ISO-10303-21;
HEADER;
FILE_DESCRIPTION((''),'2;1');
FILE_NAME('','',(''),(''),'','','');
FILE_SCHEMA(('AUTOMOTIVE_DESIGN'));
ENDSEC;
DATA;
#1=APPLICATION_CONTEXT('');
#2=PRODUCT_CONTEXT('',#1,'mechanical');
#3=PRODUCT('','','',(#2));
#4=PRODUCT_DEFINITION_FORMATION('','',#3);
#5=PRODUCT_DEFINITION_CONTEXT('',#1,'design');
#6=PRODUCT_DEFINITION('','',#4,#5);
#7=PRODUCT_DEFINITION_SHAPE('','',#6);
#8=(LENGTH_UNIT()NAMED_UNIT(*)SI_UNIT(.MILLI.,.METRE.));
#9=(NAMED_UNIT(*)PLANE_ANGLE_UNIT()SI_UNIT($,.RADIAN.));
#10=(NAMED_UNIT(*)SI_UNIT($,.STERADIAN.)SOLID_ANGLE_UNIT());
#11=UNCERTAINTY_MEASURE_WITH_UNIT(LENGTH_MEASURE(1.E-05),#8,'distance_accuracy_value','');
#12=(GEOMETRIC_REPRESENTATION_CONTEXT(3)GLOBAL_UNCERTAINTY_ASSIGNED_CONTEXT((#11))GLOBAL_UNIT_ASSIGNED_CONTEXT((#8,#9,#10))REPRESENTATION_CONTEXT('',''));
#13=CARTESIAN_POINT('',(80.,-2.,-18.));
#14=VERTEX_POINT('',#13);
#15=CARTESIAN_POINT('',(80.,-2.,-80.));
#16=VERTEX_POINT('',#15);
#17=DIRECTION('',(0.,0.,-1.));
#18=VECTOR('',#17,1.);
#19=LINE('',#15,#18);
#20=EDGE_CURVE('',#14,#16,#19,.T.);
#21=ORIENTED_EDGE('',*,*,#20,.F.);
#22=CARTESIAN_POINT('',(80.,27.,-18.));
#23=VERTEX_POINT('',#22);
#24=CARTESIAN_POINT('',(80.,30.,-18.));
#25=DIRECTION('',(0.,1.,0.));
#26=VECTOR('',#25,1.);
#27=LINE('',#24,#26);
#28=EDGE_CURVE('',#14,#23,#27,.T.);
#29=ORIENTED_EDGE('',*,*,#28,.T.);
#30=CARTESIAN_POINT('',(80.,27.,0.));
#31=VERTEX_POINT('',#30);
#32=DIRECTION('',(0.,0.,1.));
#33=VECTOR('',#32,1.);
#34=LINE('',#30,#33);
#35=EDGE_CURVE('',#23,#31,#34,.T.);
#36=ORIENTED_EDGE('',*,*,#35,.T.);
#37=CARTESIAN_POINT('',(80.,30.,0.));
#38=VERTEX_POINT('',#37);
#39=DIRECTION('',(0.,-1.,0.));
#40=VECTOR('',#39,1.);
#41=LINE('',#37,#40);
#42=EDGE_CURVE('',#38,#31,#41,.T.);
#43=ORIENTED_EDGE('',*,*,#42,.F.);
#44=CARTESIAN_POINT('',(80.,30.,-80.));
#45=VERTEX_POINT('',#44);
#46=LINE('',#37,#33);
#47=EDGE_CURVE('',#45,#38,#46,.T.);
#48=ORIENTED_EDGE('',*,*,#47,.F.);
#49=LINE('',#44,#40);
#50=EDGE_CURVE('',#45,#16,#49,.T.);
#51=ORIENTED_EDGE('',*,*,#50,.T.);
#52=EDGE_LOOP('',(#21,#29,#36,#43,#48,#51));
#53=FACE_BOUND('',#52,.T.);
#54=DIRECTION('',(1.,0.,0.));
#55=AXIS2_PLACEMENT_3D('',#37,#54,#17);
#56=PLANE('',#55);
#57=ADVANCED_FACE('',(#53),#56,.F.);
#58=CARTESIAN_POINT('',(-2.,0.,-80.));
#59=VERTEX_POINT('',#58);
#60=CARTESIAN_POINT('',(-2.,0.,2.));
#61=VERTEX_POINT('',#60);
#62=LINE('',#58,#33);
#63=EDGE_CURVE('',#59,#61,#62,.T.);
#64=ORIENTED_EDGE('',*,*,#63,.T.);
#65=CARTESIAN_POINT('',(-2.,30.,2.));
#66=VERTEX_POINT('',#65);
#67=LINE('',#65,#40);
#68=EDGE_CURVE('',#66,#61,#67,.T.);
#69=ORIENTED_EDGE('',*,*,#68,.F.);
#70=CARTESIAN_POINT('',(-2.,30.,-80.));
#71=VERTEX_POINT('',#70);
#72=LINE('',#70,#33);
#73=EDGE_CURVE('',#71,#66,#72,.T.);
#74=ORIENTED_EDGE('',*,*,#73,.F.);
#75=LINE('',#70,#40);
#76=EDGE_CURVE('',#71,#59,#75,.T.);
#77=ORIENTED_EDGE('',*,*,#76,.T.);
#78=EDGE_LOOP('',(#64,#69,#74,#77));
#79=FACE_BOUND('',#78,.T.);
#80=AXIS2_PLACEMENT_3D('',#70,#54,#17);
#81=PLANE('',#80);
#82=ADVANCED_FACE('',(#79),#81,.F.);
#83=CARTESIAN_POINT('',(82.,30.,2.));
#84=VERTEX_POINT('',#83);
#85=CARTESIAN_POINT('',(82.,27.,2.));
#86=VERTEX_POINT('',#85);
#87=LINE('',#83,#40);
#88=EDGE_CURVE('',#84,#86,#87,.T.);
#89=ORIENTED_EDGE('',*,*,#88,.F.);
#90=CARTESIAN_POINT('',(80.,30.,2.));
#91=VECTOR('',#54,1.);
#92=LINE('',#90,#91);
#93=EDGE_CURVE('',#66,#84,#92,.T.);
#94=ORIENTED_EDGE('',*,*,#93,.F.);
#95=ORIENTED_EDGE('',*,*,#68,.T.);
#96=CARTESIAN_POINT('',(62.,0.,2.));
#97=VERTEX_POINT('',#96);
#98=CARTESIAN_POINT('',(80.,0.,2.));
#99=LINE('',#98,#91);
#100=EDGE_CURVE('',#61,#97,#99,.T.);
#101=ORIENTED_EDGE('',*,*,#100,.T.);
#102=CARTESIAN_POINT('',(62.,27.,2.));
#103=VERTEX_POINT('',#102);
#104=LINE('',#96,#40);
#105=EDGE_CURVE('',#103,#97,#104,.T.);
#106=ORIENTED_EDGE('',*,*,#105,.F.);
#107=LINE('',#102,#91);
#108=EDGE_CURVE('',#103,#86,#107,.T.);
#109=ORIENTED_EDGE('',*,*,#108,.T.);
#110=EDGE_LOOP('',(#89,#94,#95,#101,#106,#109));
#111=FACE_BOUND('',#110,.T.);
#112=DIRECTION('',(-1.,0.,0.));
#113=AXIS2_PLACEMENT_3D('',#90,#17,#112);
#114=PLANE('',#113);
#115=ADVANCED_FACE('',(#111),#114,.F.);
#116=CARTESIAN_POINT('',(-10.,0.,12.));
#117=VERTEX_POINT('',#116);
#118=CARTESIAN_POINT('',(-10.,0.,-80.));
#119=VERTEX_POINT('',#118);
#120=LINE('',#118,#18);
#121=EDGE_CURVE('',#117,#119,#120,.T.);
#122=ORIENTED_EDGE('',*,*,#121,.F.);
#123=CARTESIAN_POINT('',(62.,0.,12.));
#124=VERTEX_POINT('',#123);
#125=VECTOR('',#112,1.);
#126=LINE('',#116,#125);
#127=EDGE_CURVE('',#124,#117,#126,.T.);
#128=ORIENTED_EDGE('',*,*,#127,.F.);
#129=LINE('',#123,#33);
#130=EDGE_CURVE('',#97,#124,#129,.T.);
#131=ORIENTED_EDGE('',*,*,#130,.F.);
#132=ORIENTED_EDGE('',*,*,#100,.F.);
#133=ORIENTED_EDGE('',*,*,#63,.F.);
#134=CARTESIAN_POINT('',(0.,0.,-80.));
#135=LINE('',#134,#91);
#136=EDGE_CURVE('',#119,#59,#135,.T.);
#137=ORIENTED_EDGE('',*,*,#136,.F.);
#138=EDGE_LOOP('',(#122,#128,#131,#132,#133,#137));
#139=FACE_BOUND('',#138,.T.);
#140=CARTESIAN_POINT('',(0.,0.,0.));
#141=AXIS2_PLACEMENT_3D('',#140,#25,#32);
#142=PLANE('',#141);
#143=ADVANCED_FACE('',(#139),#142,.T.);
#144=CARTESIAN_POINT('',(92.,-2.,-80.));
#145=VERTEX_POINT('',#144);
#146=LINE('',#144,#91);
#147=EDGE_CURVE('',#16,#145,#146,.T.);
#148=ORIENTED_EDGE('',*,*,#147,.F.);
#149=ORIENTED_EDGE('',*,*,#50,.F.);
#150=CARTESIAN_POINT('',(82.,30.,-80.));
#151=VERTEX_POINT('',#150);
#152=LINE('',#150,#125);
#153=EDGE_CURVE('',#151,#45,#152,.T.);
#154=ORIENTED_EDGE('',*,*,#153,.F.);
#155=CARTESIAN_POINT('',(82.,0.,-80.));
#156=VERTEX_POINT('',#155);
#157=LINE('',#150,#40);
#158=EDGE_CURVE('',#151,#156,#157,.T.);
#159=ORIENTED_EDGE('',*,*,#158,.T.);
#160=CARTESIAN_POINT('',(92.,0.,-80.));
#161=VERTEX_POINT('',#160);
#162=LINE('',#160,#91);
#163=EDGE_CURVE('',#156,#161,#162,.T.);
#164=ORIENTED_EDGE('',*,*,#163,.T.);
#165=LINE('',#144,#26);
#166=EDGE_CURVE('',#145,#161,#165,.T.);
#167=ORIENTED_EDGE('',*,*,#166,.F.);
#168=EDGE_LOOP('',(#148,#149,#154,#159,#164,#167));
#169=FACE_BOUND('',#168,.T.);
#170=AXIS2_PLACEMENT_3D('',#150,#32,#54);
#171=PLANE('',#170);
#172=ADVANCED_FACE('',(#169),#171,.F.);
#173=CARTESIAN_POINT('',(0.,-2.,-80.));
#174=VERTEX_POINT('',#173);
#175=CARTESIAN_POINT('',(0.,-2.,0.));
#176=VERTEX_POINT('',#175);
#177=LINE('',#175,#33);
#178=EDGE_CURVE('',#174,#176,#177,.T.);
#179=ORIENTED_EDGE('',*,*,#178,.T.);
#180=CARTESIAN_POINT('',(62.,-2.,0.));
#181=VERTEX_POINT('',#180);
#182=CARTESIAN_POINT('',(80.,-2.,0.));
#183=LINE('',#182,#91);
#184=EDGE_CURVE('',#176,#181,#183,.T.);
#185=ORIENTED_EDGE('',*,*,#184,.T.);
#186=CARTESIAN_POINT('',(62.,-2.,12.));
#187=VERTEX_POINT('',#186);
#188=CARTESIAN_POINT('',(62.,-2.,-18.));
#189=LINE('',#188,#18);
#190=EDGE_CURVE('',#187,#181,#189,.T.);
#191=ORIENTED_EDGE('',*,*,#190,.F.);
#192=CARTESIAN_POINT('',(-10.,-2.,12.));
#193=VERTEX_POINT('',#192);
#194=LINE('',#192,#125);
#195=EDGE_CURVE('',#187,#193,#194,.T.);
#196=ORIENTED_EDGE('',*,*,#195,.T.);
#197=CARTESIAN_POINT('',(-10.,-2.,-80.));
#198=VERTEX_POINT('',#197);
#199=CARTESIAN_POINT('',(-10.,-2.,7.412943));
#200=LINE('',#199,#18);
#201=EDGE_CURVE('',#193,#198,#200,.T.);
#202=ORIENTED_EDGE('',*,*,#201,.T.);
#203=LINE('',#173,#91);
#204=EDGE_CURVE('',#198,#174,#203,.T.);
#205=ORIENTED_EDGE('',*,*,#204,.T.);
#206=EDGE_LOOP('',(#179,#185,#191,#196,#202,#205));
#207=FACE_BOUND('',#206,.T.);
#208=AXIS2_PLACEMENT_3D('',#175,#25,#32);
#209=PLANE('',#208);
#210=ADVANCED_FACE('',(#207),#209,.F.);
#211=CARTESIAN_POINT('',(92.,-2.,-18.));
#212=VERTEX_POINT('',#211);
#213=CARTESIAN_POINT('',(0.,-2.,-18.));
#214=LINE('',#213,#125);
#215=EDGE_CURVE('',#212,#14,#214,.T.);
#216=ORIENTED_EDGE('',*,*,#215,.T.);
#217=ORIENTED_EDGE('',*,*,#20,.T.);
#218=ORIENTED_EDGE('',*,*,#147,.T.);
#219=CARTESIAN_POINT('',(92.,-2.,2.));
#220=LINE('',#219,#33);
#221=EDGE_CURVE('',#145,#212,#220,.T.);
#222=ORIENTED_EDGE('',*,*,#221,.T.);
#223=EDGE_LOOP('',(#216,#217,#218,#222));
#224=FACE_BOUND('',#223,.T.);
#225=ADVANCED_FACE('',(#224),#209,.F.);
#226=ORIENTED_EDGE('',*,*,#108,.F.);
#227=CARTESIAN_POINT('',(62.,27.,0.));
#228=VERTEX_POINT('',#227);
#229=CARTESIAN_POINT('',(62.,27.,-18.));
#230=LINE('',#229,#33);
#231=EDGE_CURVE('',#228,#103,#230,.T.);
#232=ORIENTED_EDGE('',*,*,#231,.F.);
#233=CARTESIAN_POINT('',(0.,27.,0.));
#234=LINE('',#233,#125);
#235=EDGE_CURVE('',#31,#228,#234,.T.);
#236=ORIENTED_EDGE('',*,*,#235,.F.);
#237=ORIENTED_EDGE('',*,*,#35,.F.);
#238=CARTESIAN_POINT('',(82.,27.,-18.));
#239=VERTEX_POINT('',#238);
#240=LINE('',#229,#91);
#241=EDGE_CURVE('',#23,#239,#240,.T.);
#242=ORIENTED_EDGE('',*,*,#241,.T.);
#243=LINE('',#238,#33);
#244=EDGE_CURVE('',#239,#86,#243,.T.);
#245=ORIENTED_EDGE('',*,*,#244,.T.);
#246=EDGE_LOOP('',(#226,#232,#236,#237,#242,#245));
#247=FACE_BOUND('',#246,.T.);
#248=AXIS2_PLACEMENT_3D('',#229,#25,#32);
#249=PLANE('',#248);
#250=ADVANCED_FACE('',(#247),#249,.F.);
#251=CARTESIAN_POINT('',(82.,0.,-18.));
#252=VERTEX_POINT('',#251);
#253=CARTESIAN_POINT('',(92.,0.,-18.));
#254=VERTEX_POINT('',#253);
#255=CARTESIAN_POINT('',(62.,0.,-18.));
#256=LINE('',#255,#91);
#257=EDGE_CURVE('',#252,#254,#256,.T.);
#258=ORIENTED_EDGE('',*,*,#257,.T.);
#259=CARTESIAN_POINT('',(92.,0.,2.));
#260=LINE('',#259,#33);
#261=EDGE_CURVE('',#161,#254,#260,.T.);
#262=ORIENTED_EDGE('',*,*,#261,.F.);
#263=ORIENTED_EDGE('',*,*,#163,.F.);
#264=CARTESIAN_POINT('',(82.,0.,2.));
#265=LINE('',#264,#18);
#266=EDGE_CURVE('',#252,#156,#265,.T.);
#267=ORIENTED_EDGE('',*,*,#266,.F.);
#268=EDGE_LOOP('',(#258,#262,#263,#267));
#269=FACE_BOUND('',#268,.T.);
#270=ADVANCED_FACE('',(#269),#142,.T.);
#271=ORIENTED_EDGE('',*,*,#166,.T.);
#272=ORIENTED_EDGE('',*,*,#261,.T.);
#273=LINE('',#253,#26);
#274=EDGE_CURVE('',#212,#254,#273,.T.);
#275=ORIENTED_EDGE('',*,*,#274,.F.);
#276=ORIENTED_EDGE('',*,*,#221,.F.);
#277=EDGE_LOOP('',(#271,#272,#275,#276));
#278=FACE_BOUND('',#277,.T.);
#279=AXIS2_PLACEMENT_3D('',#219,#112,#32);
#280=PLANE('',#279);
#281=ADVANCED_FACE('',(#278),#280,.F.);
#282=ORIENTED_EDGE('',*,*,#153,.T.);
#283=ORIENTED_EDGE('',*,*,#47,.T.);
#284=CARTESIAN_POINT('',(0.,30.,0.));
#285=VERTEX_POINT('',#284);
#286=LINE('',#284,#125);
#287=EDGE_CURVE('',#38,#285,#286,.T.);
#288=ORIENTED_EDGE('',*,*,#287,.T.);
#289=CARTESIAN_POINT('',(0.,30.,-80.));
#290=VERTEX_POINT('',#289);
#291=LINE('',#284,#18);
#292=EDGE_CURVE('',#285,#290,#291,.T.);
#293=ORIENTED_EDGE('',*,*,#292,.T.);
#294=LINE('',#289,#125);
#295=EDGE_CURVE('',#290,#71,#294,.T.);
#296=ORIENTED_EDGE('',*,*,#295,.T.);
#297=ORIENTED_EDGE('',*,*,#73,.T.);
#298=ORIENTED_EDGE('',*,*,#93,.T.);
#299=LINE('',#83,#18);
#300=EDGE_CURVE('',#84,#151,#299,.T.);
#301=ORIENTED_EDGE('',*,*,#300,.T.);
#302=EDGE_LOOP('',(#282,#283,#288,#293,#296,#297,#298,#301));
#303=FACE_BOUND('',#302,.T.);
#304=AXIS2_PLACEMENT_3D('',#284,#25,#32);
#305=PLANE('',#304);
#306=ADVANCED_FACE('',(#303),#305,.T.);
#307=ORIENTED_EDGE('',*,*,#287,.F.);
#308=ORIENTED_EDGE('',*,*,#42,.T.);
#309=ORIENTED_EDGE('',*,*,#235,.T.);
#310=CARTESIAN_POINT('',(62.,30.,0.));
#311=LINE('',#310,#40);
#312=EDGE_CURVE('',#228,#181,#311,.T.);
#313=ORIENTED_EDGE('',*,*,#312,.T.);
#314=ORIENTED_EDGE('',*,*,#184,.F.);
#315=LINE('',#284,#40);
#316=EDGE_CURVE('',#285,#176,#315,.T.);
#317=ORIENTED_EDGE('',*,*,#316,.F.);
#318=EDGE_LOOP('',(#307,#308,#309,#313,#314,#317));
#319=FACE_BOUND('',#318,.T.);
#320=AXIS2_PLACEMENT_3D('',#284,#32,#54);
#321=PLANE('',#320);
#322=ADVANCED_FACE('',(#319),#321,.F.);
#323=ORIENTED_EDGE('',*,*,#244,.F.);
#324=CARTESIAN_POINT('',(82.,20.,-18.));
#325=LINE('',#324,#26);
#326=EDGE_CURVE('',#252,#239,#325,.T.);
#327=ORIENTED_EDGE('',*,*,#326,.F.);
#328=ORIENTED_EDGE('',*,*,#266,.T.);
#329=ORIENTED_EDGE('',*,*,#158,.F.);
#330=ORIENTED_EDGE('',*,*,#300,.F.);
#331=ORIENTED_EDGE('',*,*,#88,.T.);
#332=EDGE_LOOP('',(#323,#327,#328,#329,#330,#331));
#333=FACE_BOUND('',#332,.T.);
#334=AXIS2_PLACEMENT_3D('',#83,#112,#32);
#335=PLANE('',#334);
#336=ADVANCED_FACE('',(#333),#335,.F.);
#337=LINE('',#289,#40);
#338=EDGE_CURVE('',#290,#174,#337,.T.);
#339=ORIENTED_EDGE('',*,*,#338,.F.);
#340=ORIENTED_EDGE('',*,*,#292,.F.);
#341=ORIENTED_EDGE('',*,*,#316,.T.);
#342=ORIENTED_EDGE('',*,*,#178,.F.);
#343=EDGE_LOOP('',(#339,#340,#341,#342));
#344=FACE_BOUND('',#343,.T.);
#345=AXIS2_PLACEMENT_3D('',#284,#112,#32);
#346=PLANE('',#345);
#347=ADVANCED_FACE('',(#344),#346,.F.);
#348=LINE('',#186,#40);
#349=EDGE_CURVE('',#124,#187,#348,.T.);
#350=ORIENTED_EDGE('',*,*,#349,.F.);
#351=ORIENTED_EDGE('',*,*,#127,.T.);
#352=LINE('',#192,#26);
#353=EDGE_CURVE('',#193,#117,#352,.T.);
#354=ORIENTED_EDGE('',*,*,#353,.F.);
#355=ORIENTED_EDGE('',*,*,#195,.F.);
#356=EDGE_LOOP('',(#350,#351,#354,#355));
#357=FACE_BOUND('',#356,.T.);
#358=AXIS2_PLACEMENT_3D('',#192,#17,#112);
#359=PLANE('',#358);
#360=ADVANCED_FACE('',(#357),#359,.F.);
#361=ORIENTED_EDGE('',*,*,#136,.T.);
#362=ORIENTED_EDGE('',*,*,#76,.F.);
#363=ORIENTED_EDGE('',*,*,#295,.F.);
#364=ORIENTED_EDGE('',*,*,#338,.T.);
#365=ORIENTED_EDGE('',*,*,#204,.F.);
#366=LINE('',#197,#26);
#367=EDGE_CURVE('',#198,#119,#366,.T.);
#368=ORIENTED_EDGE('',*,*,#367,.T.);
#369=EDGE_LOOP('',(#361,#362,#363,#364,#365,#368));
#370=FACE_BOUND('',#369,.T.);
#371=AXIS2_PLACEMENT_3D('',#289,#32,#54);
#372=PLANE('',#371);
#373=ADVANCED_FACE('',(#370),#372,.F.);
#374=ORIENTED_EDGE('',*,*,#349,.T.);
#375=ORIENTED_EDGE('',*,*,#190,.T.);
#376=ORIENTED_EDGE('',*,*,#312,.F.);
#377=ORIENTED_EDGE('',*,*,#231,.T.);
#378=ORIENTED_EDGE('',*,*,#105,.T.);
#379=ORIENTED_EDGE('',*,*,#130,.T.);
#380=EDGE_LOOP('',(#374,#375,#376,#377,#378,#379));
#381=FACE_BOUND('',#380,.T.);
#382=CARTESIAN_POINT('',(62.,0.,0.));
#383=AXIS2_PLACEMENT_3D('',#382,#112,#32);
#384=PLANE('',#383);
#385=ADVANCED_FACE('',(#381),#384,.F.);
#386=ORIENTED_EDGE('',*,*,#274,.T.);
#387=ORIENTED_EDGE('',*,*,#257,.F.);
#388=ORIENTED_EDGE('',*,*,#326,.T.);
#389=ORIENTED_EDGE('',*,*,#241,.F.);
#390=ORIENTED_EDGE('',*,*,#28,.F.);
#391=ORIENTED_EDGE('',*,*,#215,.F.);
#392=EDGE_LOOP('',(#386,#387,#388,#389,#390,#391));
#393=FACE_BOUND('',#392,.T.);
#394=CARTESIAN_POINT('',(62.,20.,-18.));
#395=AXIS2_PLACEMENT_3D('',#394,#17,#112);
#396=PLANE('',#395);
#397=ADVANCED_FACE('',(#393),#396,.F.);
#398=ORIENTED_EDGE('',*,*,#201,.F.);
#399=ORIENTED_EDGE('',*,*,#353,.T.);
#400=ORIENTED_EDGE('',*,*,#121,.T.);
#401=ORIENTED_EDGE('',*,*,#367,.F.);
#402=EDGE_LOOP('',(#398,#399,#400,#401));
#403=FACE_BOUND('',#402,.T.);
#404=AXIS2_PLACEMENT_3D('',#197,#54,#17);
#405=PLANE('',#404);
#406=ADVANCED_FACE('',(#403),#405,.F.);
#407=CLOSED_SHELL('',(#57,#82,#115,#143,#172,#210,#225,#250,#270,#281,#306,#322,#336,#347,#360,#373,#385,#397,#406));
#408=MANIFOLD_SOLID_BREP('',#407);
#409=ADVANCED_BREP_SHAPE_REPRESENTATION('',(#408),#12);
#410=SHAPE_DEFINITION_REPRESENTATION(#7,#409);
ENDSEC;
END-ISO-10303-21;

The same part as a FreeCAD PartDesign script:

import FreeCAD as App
import Part
import Sketcher
from FreeCAD import Vector
Q = App.Units.Quantity


def add_polygon(sketch, points):
    """Adds a closed chain of lines whose ends are joined by coincident constraints."""
    first, n = sketch.GeometryCount, len(points)
    for a, b in zip(points, points[1:] + points[:1]):
        sketch.addGeometry(Part.LineSegment(App.Vector(*a, 0), App.Vector(*b, 0)), False)
    for i in range(n):
        sketch.addConstraint(Sketcher.Constraint("Coincident", first + i, 2, first + (i + 1) % n, 1))

doc = App.newDocument("Part")
body = doc.addObject("PartDesign::Body", "Body")

sketch1 = doc.addObject("Sketcher::SketchObject", "Sketch")
body.addObject(sketch1)
sketch1.AttachmentSupport = (doc.XZ_Plane, [""])
sketch1.MapMode = "FlatFace"
add_polygon(sketch1, [(80, 0), (0, 0), (0, -80), (-2, -80), (-2, 2), (82, 2), (82, -80), (80, -80)])
sketch1.addConstraint(Sketcher.Constraint("Horizontal", 0))
sketch1.addConstraint(Sketcher.Constraint("Vertical", 1))
sketch1.addConstraint(Sketcher.Constraint("Horizontal", 2))
sketch1.addConstraint(Sketcher.Constraint("Vertical", 3))
sketch1.addConstraint(Sketcher.Constraint("Horizontal", 4))
sketch1.addConstraint(Sketcher.Constraint("Vertical", 5))
sketch1.addConstraint(Sketcher.Constraint("Horizontal", 6))
sketch1.addConstraint(Sketcher.Constraint("Vertical", 7))
sketch1.addConstraint(Sketcher.Constraint("Coincident", 0, 2, -1, 1))
sketch1.addConstraint(Sketcher.Constraint("Horizontal", 2, 2, 5, 2))
sketch1.addConstraint(Sketcher.Constraint("Equal", 2, 6))
sketch1.addConstraint(Sketcher.Constraint("Equal", 0, 1))
sketch1.addConstraint(Sketcher.Constraint("DistanceX", 0, 2, 0, 1, Q("80 mm")))
sketch1.addConstraint(Sketcher.Constraint("DistanceX", 2, 2, 2, 1, Q("2 mm")))
sketch1.addConstraint(Sketcher.Constraint("DistanceY", 3, 1, 3, 2, Q("82 mm")))
pad1 = doc.addObject("PartDesign::Pad", "Pad")
body.addObject(pad1)
pad1.Profile = sketch1
pad1.Length = 30
pad1.Reversed = True

sketch2 = doc.addObject("Sketcher::SketchObject", "Sketch001")
body.addObject(sketch2)
sketch2.AttachmentSupport = (doc.YZ_Plane, [""])
sketch2.MapMode = "FlatFace"
sketch2.AttachmentOffset = App.Placement(Vector(0, 0, 82), App.Rotation())
add_polygon(sketch2, [(20, 2), (0, 2), (0, -18), (20, -18)])
sketch2.addConstraint(Sketcher.Constraint("Horizontal", 0))
sketch2.addConstraint(Sketcher.Constraint("Vertical", 1))
sketch2.addConstraint(Sketcher.Constraint("Horizontal", 2))
sketch2.addConstraint(Sketcher.Constraint("Vertical", 3))
sketch2.addConstraint(Sketcher.Constraint("PointOnObject", 0, 2, -2))
sketch2.addConstraint(Sketcher.Constraint("Equal", 2, 1))
sketch2.addConstraint(Sketcher.Constraint("DistanceX", 0, 2, 0, 1, Q("20 mm")))
sketch2.addConstraint(Sketcher.Constraint("DistanceY", -1, 1, 0, 2, Q("2 mm")))
pocket1 = doc.addObject("PartDesign::Pocket", "Pocket")
body.addObject(pocket1)
pocket1.Profile = sketch2
pocket1.Length = 20

sketch3 = doc.addObject("Sketcher::SketchObject", "Sketch002")
body.addObject(sketch3)
sketch3.AttachmentSupport = (doc.XZ_Plane, [""])
sketch3.MapMode = "FlatFace"
add_polygon(sketch3, [(-10, -80), (0, -80), (0, 0), (80, 0), (80, -80), (92, -80), (92, 12), (-10, 12)])
sketch3.addConstraint(Sketcher.Constraint("Horizontal", 0))
sketch3.addConstraint(Sketcher.Constraint("Vertical", 1))
sketch3.addConstraint(Sketcher.Constraint("Horizontal", 2))
sketch3.addConstraint(Sketcher.Constraint("Vertical", 3))
sketch3.addConstraint(Sketcher.Constraint("Horizontal", 4))
sketch3.addConstraint(Sketcher.Constraint("Vertical", 5))
sketch3.addConstraint(Sketcher.Constraint("Horizontal", 6))
sketch3.addConstraint(Sketcher.Constraint("Vertical", 7))
sketch3.addConstraint(Sketcher.Constraint("Coincident", 1, 2, -1, 1))
sketch3.addConstraint(Sketcher.Constraint("Horizontal", 0, 2, 3, 2))
sketch3.addConstraint(Sketcher.Constraint("Equal", 2, 1))
sketch3.addConstraint(Sketcher.Constraint("DistanceX", 0, 1, 0, 2, Q("10 mm")))
sketch3.addConstraint(Sketcher.Constraint("DistanceX", 2, 1, 2, 2, Q("80 mm")))
sketch3.addConstraint(Sketcher.Constraint("DistanceX", 4, 1, 4, 2, Q("12 mm")))
sketch3.addConstraint(Sketcher.Constraint("DistanceY", 5, 1, 5, 2, Q("92 mm")))
pad2 = doc.addObject("PartDesign::Pad", "Pad001")
body.addObject(pad2)
pad2.Profile = sketch3
pad2.Length = 2

sketch4 = doc.addObject("Sketcher::SketchObject", "Sketch003")
body.addObject(sketch4)
sketch4.AttachmentSupport = (doc.YZ_Plane, [""])
sketch4.MapMode = "FlatFace"
sketch4.AttachmentOffset = App.Placement(Vector(0, 0, 92), App.Rotation())
add_polygon(sketch4, [(0, 12), (-2, 12), (-2, -18), (0, -18)])
sketch4.addConstraint(Sketcher.Constraint("Horizontal", 0))
sketch4.addConstraint(Sketcher.Constraint("Vertical", 1))
sketch4.addConstraint(Sketcher.Constraint("Horizontal", 2))
sketch4.addConstraint(Sketcher.Constraint("Vertical", 3))
sketch4.addConstraint(Sketcher.Constraint("PointOnObject", 2, 2, -2))
sketch4.addConstraint(Sketcher.Constraint("DistanceX", 0, 2, 0, 1, Q("2 mm")))
sketch4.addConstraint(Sketcher.Constraint("DistanceY", 1, 2, 1, 1, Q("30 mm")))
sketch4.addConstraint(Sketcher.Constraint("DistanceY", -1, 1, 0, 2, Q("12 mm")))
pocket2 = doc.addObject("PartDesign::Pocket", "Pocket001")
body.addObject(pocket2)
pocket2.Profile = sketch4
pocket2.Length = 30

sketch5 = doc.addObject("Sketcher::SketchObject", "Sketch004")
body.addObject(sketch5)
sketch5.AttachmentSupport = (doc.YZ_Plane, [""])
sketch5.MapMode = "FlatFace"
sketch5.AttachmentOffset = App.Placement(Vector(0, 0, 82), App.Rotation())
add_polygon(sketch5, [(27, 2), (20, 2), (20, -18), (27, -18)])
sketch5.addConstraint(Sketcher.Constraint("Horizontal", 0))
sketch5.addConstraint(Sketcher.Constraint("Vertical", 1))
sketch5.addConstraint(Sketcher.Constraint("Horizontal", 2))
sketch5.addConstraint(Sketcher.Constraint("Vertical", 3))
sketch5.addConstraint(Sketcher.Constraint("DistanceX", 0, 2, 0, 1, Q("7 mm")))
sketch5.addConstraint(Sketcher.Constraint("DistanceY", 1, 2, 1, 1, Q("20 mm")))
sketch5.addConstraint(Sketcher.Constraint("DistanceX", -1, 1, 0, 2, Q("20 mm")))
sketch5.addConstraint(Sketcher.Constraint("DistanceY", -1, 1, 0, 2, Q("2 mm")))
pocket3 = doc.addObject("PartDesign::Pocket", "Pocket002")
body.addObject(pocket3)
pocket3.Profile = sketch5
pocket3.Length = 20

doc.recompute()
